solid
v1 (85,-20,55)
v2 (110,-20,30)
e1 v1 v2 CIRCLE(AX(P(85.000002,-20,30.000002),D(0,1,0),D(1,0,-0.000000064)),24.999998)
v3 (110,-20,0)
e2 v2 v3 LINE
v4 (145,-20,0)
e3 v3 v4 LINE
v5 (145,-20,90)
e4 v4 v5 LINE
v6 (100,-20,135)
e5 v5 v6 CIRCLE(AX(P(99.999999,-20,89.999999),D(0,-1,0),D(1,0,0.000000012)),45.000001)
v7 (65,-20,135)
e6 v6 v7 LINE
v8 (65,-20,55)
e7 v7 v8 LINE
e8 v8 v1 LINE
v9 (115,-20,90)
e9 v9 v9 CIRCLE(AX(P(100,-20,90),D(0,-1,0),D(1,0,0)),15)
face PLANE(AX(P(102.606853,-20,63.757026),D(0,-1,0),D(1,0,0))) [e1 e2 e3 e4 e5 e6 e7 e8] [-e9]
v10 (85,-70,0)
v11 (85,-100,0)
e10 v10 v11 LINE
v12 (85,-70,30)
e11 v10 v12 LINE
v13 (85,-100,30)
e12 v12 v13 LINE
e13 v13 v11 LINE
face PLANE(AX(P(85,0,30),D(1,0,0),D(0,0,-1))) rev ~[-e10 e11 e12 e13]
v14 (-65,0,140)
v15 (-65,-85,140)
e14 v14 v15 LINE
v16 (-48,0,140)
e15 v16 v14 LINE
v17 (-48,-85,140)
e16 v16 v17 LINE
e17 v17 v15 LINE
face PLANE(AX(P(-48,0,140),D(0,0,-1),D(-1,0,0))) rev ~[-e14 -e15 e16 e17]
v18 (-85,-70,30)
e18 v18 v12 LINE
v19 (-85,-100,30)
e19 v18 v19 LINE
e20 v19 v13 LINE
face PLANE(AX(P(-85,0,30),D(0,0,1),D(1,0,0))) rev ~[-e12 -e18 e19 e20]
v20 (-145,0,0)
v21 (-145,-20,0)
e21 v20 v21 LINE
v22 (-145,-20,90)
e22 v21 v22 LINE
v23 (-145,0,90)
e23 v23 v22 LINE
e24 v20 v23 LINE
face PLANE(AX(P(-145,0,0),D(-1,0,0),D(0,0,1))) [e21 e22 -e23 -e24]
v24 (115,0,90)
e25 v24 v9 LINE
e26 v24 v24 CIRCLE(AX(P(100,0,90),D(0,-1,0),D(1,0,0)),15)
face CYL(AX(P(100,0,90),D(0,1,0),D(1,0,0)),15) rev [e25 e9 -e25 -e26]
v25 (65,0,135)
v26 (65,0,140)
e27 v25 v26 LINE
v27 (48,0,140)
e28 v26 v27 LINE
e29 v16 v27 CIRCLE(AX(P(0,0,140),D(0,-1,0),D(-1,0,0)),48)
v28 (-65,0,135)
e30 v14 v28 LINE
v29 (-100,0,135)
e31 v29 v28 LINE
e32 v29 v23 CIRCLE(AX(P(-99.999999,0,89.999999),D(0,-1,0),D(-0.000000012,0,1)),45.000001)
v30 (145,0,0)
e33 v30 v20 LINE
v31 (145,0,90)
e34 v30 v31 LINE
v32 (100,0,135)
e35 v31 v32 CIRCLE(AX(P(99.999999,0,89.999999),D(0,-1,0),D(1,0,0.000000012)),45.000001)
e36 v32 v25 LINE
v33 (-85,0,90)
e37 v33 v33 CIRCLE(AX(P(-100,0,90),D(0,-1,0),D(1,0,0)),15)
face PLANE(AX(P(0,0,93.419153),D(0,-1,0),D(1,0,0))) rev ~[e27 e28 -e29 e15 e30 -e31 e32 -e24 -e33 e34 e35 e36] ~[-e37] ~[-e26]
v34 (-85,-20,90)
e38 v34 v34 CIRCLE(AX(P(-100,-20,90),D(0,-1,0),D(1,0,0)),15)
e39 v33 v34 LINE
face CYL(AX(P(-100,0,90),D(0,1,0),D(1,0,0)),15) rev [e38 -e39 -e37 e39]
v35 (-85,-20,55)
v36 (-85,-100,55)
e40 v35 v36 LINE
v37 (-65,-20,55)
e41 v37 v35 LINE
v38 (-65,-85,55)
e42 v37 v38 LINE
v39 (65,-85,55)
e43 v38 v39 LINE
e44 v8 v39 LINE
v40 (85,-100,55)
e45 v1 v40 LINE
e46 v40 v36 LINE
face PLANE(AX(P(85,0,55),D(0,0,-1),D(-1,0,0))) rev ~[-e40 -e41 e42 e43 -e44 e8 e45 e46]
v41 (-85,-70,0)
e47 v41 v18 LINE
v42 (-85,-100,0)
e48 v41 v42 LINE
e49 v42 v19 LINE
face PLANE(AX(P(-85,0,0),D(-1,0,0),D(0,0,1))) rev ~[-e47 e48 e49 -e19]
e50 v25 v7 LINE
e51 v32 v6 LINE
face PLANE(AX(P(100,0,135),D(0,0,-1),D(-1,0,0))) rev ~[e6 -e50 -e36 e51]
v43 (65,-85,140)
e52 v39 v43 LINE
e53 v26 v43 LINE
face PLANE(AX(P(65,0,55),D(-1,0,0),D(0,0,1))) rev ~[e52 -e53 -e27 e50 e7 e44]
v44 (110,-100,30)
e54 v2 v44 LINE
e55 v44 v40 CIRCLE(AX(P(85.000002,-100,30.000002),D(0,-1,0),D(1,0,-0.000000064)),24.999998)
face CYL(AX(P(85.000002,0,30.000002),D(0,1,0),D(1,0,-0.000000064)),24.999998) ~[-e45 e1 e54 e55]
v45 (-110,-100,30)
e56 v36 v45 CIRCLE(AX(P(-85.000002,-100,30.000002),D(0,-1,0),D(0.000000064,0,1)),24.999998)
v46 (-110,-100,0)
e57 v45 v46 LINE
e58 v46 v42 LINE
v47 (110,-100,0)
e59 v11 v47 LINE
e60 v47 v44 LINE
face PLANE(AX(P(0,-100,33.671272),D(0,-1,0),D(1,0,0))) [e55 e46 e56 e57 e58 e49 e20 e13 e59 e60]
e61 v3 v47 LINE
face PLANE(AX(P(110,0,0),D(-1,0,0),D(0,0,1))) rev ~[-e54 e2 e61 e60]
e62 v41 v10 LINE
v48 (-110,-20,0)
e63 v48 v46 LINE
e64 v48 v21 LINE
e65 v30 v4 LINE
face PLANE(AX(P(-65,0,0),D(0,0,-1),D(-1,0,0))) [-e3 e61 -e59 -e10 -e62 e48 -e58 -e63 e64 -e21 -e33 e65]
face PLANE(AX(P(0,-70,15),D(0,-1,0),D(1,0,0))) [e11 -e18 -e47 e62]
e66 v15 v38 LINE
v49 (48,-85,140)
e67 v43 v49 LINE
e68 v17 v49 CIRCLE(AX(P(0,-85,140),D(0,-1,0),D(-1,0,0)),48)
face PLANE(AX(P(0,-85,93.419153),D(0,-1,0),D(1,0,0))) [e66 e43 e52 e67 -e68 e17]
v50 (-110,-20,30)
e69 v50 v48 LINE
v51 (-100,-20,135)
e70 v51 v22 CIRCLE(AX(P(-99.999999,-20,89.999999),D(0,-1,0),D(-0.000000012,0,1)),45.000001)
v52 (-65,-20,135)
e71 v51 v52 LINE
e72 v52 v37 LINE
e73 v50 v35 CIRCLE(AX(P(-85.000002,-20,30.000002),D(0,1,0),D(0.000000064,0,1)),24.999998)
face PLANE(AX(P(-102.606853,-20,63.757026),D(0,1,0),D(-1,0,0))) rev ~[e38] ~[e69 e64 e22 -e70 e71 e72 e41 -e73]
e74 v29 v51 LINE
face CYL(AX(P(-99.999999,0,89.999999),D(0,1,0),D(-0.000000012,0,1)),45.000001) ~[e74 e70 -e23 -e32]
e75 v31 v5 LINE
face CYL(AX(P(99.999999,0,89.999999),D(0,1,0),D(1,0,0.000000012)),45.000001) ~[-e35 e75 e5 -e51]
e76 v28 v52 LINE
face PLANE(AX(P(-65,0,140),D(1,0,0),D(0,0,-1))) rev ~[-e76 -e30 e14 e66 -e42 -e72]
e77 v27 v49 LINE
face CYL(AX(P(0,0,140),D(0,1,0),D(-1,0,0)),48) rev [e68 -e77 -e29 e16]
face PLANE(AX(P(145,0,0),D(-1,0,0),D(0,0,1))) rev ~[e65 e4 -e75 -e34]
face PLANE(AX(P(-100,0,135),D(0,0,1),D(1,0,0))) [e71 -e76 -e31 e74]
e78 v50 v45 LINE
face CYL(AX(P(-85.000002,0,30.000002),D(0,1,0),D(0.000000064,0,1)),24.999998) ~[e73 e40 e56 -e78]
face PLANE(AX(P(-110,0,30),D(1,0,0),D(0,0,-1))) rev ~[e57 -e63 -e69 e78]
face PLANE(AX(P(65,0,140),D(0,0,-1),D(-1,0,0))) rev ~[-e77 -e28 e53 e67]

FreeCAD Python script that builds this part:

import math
import FreeCAD as App
import Part
import Sketcher

V = App.Vector
Q = App.Units.Quantity

doc = App.newDocument("Part")
body = doc.addObject("PartDesign::Body", "Body")

sketch1 = body.newObject("Sketcher::SketchObject", "Sketch")
sketch1.AttachmentSupport = (doc.getObject("XZ_Plane"), [""])
sketch1.MapMode = "FlatFace"
sketch1.addGeometry(Part.LineSegment(V(-48, 140, 0), V(-65, 140, 0)), False)
sketch1.addGeometry(Part.LineSegment(V(-65, 140, 0), V(-65, 55, 0)), False)
sketch1.addGeometry(Part.LineSegment(V(-65, 55, 0), V(65, 55, 0)), False)
sketch1.addGeometry(Part.LineSegment(V(65, 55, 0), V(65, 140, 0)), False)
sketch1.addGeometry(Part.LineSegment(V(65, 140, 0), V(48, 140, 0)), False)
sketch1.addGeometry(Part.ArcOfCircle(Part.Circle(V(0, 140, 0), V(0, 0, 1), 48), math.radians(180), math.radians(360)), False)
sketch1.addConstraint(Sketcher.Constraint("Coincident", 0, 2, 1, 1))
sketch1.addConstraint(Sketcher.Constraint("Coincident", 1, 2, 2, 1))
sketch1.addConstraint(Sketcher.Constraint("Coincident", 2, 2, 3, 1))
sketch1.addConstraint(Sketcher.Constraint("Coincident", 3, 2, 4, 1))
sketch1.addConstraint(Sketcher.Constraint("Coincident", 4, 2, 5, 2))
sketch1.addConstraint(Sketcher.Constraint("Coincident", 5, 1, 0, 1))
sketch1.addConstraint(Sketcher.Constraint("Horizontal", 0))
sketch1.addConstraint(Sketcher.Constraint("Vertical", 1))
sketch1.addConstraint(Sketcher.Constraint("Horizontal", 2))
sketch1.addConstraint(Sketcher.Constraint("Vertical", 3))
sketch1.addConstraint(Sketcher.Constraint("Horizontal", 4))
sketch1.addConstraint(Sketcher.Constraint("Symmetric", 0, 2, 3, 2, -2))
sketch1.addConstraint(Sketcher.Constraint("PointOnObject", 5, 3, -2))
sketch1.addConstraint(Sketcher.Constraint("Horizontal", 5, 3, 0, 2))
sketch1.addConstraint(Sketcher.Constraint("Radius", 5, Q("48 mm")))
sketch1.addConstraint(Sketcher.Constraint("DistanceX", 0, 2, 0, 1, Q("17 mm")))
sketch1.addConstraint(Sketcher.Constraint("DistanceY", 1, 2, 1, 1, Q("85 mm")))
sketch1.addConstraint(Sketcher.Constraint("DistanceY", -1, 1, 5, 3, Q("140 mm")))
pad1 = body.newObject("PartDesign::Pad", "Pad")
pad1.Profile = sketch1
pad1.Length = 85
body2 = doc.addObject("PartDesign::Body", "Body001")

sketch2 = body2.newObject("Sketcher::SketchObject", "Sketch001")
sketch2.AttachmentSupport = (doc.getObject("XZ_Plane001"), [""])
sketch2.MapMode = "FlatFace"
sketch2.addGeometry(Part.LineSegment(V(-85, 0, 0), V(-85, 30, 0)), False)
sketch2.addGeometry(Part.LineSegment(V(-85, 30, 0), V(85, 30, 0)), False)
sketch2.addGeometry(Part.LineSegment(V(85, 30, 0), V(85, 0, 0)), False)
sketch2.addGeometry(Part.LineSegment(V(85, 0, 0), V(110, 0, 0)), False)
sketch2.addGeometry(Part.LineSegment(V(110, 0, 0), V(110, 30, 0)), False)
sketch2.addGeometry(Part.ArcOfCircle(Part.Circle(V(85.000002, 30.000002, 0), V(0, 0, 1), 24.999998), math.radians(-0.000004), math.radians(90.000004)), False)
sketch2.addGeometry(Part.LineSegment(V(85, 55, 0), V(-85, 55, 0)), False)
sketch2.addGeometry(Part.ArcOfCircle(Part.Circle(V(-85.000002, 30.000002, 0), V(0, 0, 1), 24.999998), math.radians(89.999996), math.radians(180.000004)), False)
sketch2.addGeometry(Part.LineSegment(V(-110, 30, 0), V(-110, 0, 0)), False)
sketch2.addGeometry(Part.LineSegment(V(-110, 0, 0), V(-85, 0, 0)), False)
sketch2.addConstraint(Sketcher.Constraint("Coincident", 0, 2, 1, 1))
sketch2.addConstraint(Sketcher.Constraint("Coincident", 1, 2, 2, 1))
sketch2.addConstraint(Sketcher.Constraint("Coincident", 2, 2, 3, 1))
sketch2.addConstraint(Sketcher.Constraint("Coincident", 3, 2, 4, 1))
sketch2.addConstraint(Sketcher.Constraint("Tangent", 4, 2, 5, 1))
sketch2.addConstraint(Sketcher.Constraint("Tangent", 5, 2, 6, 1))
sketch2.addConstraint(Sketcher.Constraint("Tangent", 6, 2, 7, 1))
sketch2.addConstraint(Sketcher.Constraint("Tangent", 7, 2, 8, 1))
sketch2.addConstraint(Sketcher.Constraint("Coincident", 8, 2, 9, 1))
sketch2.addConstraint(Sketcher.Constraint("Coincident", 9, 2, 0, 1))
sketch2.addConstraint(Sketcher.Constraint("Vertical", 0))
sketch2.addConstraint(Sketcher.Constraint("Horizontal", 1))
sketch2.addConstraint(Sketcher.Constraint("Vertical", 2))
sketch2.addConstraint(Sketcher.Constraint("Horizontal", 3))
sketch2.addConstraint(Sketcher.Constraint("Vertical", 4))
sketch2.addConstraint(Sketcher.Constraint("Horizontal", 6))
sketch2.addConstraint(Sketcher.Constraint("Vertical", 8))
sketch2.addConstraint(Sketcher.Constraint("Horizontal", 9))
sketch2.addConstraint(Sketcher.Constraint("Coincident", 0, 2, 7, 3))
sketch2.addConstraint(Sketcher.Constraint("Coincident", 1, 2, 5, 3))
sketch2.addConstraint(Sketcher.Constraint("Symmetric", 3, 2, 8, 2, -1, 1))
sketch2.addConstraint(Sketcher.Constraint("PointOnObject", 2, 2, -1))
sketch2.addConstraint(Sketcher.Constraint("Radius", 5, Q("24.999998 mm")))
sketch2.addConstraint(Sketcher.Constraint("DistanceX", 1, 1, 1, 2, Q("170 mm")))
sketch2.addConstraint(Sketcher.Constraint("DistanceY", 0, 1, 0, 2, Q("30 mm")))
pad2 = body2.newObject("PartDesign::Pad", "Pad001")
pad2.Profile = sketch2
pad2.Length = 100
body3 = doc.addObject("PartDesign::Body", "Body002")

sketch3 = body3.newObject("Sketcher::SketchObject", "Sketch002")
sketch3.AttachmentSupport = (doc.getObject("XZ_Plane002"), [""])
sketch3.MapMode = "FlatFace"
sketch3.addGeometry(Part.LineSegment(V(-85, 30, 0), V(-85, 0, 0)), False)
sketch3.addGeometry(Part.LineSegment(V(-85, 0, 0), V(85, 0, 0)), False)
sketch3.addGeometry(Part.LineSegment(V(85, 0, 0), V(85, 30, 0)), False)
sketch3.addGeometry(Part.LineSegment(V(85, 30, 0), V(-85, 30, 0)), False)
sketch3.addConstraint(Sketcher.Constraint("Coincident", 0, 2, 1, 1))
sketch3.addConstraint(Sketcher.Constraint("Coincident", 1, 2, 2, 1))
sketch3.addConstraint(Sketcher.Constraint("Coincident", 2, 2, 3, 1))
sketch3.addConstraint(Sketcher.Constraint("Coincident", 3, 2, 0, 1))
sketch3.addConstraint(Sketcher.Constraint("Vertical", 0))
sketch3.addConstraint(Sketcher.Constraint("Horizontal", 1))
sketch3.addConstraint(Sketcher.Constraint("Vertical", 2))
sketch3.addConstraint(Sketcher.Constraint("Horizontal", 3))
sketch3.addConstraint(Sketcher.Constraint("Symmetric", 0, 2, 1, 2, -1, 1))
sketch3.addConstraint(Sketcher.Constraint("DistanceX", 1, 1, 1, 2, Q("170 mm")))
sketch3.addConstraint(Sketcher.Constraint("DistanceY", 0, 2, 0, 1, Q("30 mm")))
pad3 = body3.newObject("PartDesign::Pad", "Pad002")
pad3.Profile = sketch3
pad3.Length = 70
body4 = doc.addObject("PartDesign::Body", "Body003")
body4.AllowCompound = True

sketch4 = body4.newObject("Sketcher::SketchObject", "Sketch003")
sketch4.AttachmentSupport = (doc.getObject("XZ_Plane003"), [""])
sketch4.MapMode = "FlatFace"
sketch4.addGeometry(Part.LineSegment(V(65, 0, 0), V(145, 0, 0)), False)
sketch4.addGeometry(Part.LineSegment(V(145, 0, 0), V(145, 90, 0)), False)
sketch4.addGeometry(Part.ArcOfCircle(Part.Circle(V(99.999999, 89.999999, 0), V(0, 0, 1), 45.000001), math.radians(0.000001), math.radians(89.999999)), False)
sketch4.addGeometry(Part.LineSegment(V(100, 135, 0), V(65, 135, 0)), False)
sketch4.addGeometry(Part.LineSegment(V(65, 135, 0), V(65, 0, 0)), False)
sketch4.addGeometry(Part.Circle(V(100, 90, 0), V(0, 0, 1), 15), False)
sketch4.addGeometry(Part.LineSegment(V(-145, 0, 0), V(-65, 0, 0)), False)
sketch4.addGeometry(Part.LineSegment(V(-65, 0, 0), V(-65, 135, 0)), False)
sketch4.addGeometry(Part.LineSegment(V(-65, 135, 0), V(-100, 135, 0)), False)
sketch4.addGeometry(Part.ArcOfCircle(Part.Circle(V(-99.999999, 89.999999, 0), V(0, 0, 1), 45.000001), math.radians(90.000001), math.radians(179.999999)), False)
sketch4.addGeometry(Part.LineSegment(V(-145, 90, 0), V(-145, 0, 0)), False)
sketch4.addGeometry(Part.Circle(V(-100, 90, 0), V(0, 0, 1), 15), False)
sketch4.addConstraint(Sketcher.Constraint("Coincident", 0, 2, 1, 1))
sketch4.addConstraint(Sketcher.Constraint("Tangent", 1, 2, 2, 1))
sketch4.addConstraint(Sketcher.Constraint("Tangent", 2, 2, 3, 1))
sketch4.addConstraint(Sketcher.Constraint("Coincident", 3, 2, 4, 1))
sketch4.addConstraint(Sketcher.Constraint("Coincident", 4, 2, 0, 1))
sketch4.addConstraint(Sketcher.Constraint("Coincident", 6, 2, 7, 1))
sketch4.addConstraint(Sketcher.Constraint("Coincident", 7, 2, 8, 1))
sketch4.addConstraint(Sketcher.Constraint("Tangent", 8, 2, 9, 1))
sketch4.addConstraint(Sketcher.Constraint("Tangent", 9, 2, 10, 1))
sketch4.addConstraint(Sketcher.Constraint("Coincident", 10, 2, 6, 1))
sketch4.addConstraint(Sketcher.Constraint("Horizontal", 0))
sketch4.addConstraint(Sketcher.Constraint("Vertical", 1))
sketch4.addConstraint(Sketcher.Constraint("Horizontal", 3))
sketch4.addConstraint(Sketcher.Constraint("Vertical", 4))
sketch4.addConstraint(Sketcher.Constraint("Horizontal", 6))
sketch4.addConstraint(Sketcher.Constraint("Vertical", 7))
sketch4.addConstraint(Sketcher.Constraint("Horizontal", 8))
sketch4.addConstraint(Sketcher.Constraint("Vertical", 10))
sketch4.addConstraint(Sketcher.Constraint("Coincident", 5, 3, 2, 3))
sketch4.addConstraint(Sketcher.Constraint("Coincident", 11, 3, 9, 3))
sketch4.addConstraint(Sketcher.Constraint("Equal", 2, 9))
sketch4.addConstraint(Sketcher.Constraint("Equal", 5, 11))
sketch4.addConstraint(Sketcher.Constraint("Symmetric", 4, 2, 6, 2, -1, 1))
sketch4.addConstraint(Sketcher.Constraint("Symmetric", 2, 3, 9, 3, -2))
sketch4.addConstraint(Sketcher.Constraint("PointOnObject", 0, 2, -1))
sketch4.addConstraint(Sketcher.Constraint("Diameter", 5, Q("30 mm")))
sketch4.addConstraint(Sketcher.Constraint("Radius", 2, Q("45.000001 mm")))
sketch4.addConstraint(Sketcher.Constraint("DistanceX", 0, 1, 0, 2, Q("80 mm")))
sketch4.addConstraint(Sketcher.Constraint("DistanceY", 1, 1, 1, 2, Q("90 mm")))
sketch4.addConstraint(Sketcher.Constraint("DistanceX", -1, 1, 2, 3, Q("99.999999 mm")))
pad4 = body4.newObject("PartDesign::Pad", "Pad003")
pad4.Profile = sketch4
pad4.Length = 20
doc.recompute()

boolean = body4.newObject("PartDesign::Boolean", "Boolean")
boolean.Type = "Fuse"
boolean.addObjects([body])
doc.recompute()

boolean2 = body4.newObject("PartDesign::Boolean", "Boolean001")
boolean2.Type = "Fuse"
boolean2.addObjects([body2])
doc.recompute()

boolean3 = body4.newObject("PartDesign::Boolean", "Boolean002")
boolean3.Type = "Fuse"
boolean3.addObjects([body3])

doc.recompute()
